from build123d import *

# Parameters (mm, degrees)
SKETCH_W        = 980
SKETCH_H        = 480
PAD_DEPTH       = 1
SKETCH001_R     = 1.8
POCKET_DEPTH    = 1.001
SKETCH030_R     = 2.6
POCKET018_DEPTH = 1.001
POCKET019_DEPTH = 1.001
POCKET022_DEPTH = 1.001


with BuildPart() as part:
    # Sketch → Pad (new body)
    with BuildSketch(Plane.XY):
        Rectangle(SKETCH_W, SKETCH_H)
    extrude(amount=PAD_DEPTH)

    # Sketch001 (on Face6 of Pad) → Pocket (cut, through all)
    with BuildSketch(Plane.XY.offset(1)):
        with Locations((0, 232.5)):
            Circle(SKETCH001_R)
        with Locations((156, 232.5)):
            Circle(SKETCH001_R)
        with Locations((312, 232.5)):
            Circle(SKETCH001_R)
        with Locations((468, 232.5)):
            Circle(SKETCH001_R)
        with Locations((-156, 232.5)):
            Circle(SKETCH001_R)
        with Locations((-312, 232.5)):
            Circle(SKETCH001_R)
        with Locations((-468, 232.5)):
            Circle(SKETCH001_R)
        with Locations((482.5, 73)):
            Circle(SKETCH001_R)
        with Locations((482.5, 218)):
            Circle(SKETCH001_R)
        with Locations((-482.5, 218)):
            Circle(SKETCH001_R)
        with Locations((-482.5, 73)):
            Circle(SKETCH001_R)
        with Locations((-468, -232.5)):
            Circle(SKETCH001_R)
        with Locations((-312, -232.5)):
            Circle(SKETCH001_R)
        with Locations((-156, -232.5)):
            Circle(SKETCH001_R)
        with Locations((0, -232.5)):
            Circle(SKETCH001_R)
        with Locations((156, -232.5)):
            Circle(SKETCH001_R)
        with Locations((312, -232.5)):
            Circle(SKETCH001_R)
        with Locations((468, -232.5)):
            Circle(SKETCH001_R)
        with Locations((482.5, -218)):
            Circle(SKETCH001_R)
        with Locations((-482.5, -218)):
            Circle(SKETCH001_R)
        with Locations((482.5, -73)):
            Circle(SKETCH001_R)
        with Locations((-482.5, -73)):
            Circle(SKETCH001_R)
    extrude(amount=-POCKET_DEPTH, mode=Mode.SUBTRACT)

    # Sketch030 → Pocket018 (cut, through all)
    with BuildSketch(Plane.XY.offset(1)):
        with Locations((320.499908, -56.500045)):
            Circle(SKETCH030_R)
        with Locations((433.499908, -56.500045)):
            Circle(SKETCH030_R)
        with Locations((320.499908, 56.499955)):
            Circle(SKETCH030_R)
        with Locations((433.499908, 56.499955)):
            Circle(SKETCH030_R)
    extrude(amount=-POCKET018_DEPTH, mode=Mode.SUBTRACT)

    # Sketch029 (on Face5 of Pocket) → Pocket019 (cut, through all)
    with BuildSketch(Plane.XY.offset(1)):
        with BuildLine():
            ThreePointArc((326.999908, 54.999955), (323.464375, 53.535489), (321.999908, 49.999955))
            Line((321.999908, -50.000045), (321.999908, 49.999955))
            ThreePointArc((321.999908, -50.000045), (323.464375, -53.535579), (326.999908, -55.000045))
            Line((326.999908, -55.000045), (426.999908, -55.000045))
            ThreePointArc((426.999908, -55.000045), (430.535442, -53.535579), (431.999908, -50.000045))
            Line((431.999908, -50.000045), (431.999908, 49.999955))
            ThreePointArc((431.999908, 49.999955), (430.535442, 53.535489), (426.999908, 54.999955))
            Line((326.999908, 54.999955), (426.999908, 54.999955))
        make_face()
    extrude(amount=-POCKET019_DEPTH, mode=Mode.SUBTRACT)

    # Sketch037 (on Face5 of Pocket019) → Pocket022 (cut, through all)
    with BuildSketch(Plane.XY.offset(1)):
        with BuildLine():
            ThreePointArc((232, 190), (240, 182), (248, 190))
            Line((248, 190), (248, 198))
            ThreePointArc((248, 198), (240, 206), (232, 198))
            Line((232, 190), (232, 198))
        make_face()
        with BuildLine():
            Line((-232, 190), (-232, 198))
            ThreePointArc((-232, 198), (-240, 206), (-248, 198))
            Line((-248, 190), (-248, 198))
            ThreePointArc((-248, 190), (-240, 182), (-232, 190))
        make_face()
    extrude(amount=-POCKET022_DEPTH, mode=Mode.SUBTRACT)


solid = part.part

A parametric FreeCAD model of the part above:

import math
import FreeCAD as App
import Part
import Sketcher
from FreeCAD import Vector
Q = App.Units.Quantity


def add_polygon(sketch, points):
    """Adds a closed chain of lines whose ends are joined by coincident constraints."""
    first, n = sketch.GeometryCount, len(points)
    for a, b in zip(points, points[1:] + points[:1]):
        sketch.addGeometry(Part.LineSegment(App.Vector(*a, 0), App.Vector(*b, 0)), False)
    for i in range(n):
        sketch.addConstraint(Sketcher.Constraint("Coincident", first + i, 2, first + (i + 1) % n, 1))

doc = App.newDocument("Part")
body = doc.addObject("PartDesign::Body", "Body")

sketch1 = body.newObject("Sketcher::SketchObject", "Sketch")
sketch1.AttachmentSupport = (doc.getObject("XY_Plane"), [""])
sketch1.MapMode = "FlatFace"
add_polygon(sketch1, [(-490, 240), (-490, -240), (490, -240), (490, 240)])
sketch1.addConstraint([
    Sketcher.Constraint("Vertical", 0),
    Sketcher.Constraint("Horizontal", 1),
    Sketcher.Constraint("Vertical", 2),
    Sketcher.Constraint("Horizontal", 3),
    Sketcher.Constraint("Symmetric", 0, 2, 2, 2, -1, 1),
    Sketcher.Constraint("DistanceX", 1, 1, 1, 2, Q("980 mm")),
    Sketcher.Constraint("DistanceY", 0, 2, 0, 1, Q("480 mm")),
])
pad1 = body.newObject("PartDesign::Pad", "Pad")
pad1.Profile = sketch1
pad1.Length = 1

sketch2 = body.newObject("Sketcher::SketchObject", "Sketch001")
sketch2.AttachmentSupport = (doc.getObject("XY_Plane"), [""])
sketch2.MapMode = "FlatFace"
sketch2.AttachmentOffset = App.Placement(Vector(0, 0, 1), App.Rotation())
sketch2.addGeometry([
    Part.Circle(Vector(0, 232.5, 0), Vector(0, 0, 1), 1.8),
    Part.Circle(Vector(156, 232.5, 0), Vector(0, 0, 1), 1.8),
    Part.Circle(Vector(312, 232.5, 0), Vector(0, 0, 1), 1.8),
    Part.Circle(Vector(468, 232.5, 0), Vector(0, 0, 1), 1.8),
    Part.Circle(Vector(-156, 232.5, 0), Vector(0, 0, 1), 1.8),
    Part.Circle(Vector(-312, 232.5, 0), Vector(0, 0, 1), 1.8),
    Part.Circle(Vector(-468, 232.5, 0), Vector(0, 0, 1), 1.8),
    Part.Circle(Vector(482.5, 73, 0), Vector(0, 0, 1), 1.8),
    Part.Circle(Vector(482.5, 218, 0), Vector(0, 0, 1), 1.8),
    Part.Circle(Vector(-482.5, 218, 0), Vector(0, 0, 1), 1.8),
    Part.Circle(Vector(-482.5, 73, 0), Vector(0, 0, 1), 1.8),
    Part.Circle(Vector(-468, -232.5, 0), Vector(0, 0, 1), 1.8),
    Part.Circle(Vector(-312, -232.5, 0), Vector(0, 0, 1), 1.8),
    Part.Circle(Vector(-156, -232.5, 0), Vector(0, 0, 1), 1.8),
    Part.Circle(Vector(0, -232.5, 0), Vector(0, 0, 1), 1.8),
    Part.Circle(Vector(156, -232.5, 0), Vector(0, 0, 1), 1.8),
    Part.Circle(Vector(312, -232.5, 0), Vector(0, 0, 1), 1.8),
    Part.Circle(Vector(468, -232.5, 0), Vector(0, 0, 1), 1.8),
    Part.Circle(Vector(482.5, -218, 0), Vector(0, 0, 1), 1.8),
    Part.Circle(Vector(-482.5, -218, 0), Vector(0, 0, 1), 1.8),
    Part.Circle(Vector(482.5, -73, 0), Vector(0, 0, 1), 1.8),
    Part.Circle(Vector(-482.5, -73, 0), Vector(0, 0, 1), 1.8),
], False)
sketch2.addConstraint([
    Sketcher.Constraint("Equal", 0, 1),
    Sketcher.Constraint("Equal", 1, 2),
    Sketcher.Constraint("Equal", 2, 3),
    Sketcher.Constraint("Equal", 3, 4),
    Sketcher.Constraint("Equal", 4, 5),
    Sketcher.Constraint("Equal", 5, 6),
    Sketcher.Constraint("Equal", 6, 7),
    Sketcher.Constraint("Equal", 7, 8),
    Sketcher.Constraint("Equal", 8, 9),
    Sketcher.Constraint("Equal", 9, 10),
    Sketcher.Constraint("Equal", 10, 11),
    Sketcher.Constraint("Equal", 11, 12),
    Sketcher.Constraint("Equal", 12, 13),
    Sketcher.Constraint("Equal", 13, 14),
    Sketcher.Constraint("Equal", 14, 15),
    Sketcher.Constraint("Equal", 15, 16),
    Sketcher.Constraint("Equal", 16, 17),
    Sketcher.Constraint("Equal", 17, 18),
    Sketcher.Constraint("Equal", 18, 19),
    Sketcher.Constraint("Equal", 19, 20),
    Sketcher.Constraint("Equal", 20, 21),
    Sketcher.Constraint("Symmetric", 3, 3, 11, 3, -1, 1),
    Sketcher.Constraint("Symmetric", 2, 3, 12, 3, -1, 1),
    Sketcher.Constraint("Symmetric", 1, 3, 13, 3, -1, 1),
    Sketcher.Constraint("Symmetric", 0, 3, 14, 3, -1, 1),
    Sketcher.Constraint("Symmetric", 4, 3, 15, 3, -1, 1),
    Sketcher.Constraint("Symmetric", 5, 3, 16, 3, -1, 1),
    Sketcher.Constraint("Symmetric", 6, 3, 17, 3, -1, 1),
    Sketcher.Constraint("Symmetric", 9, 3, 18, 3, -1, 1),
    Sketcher.Constraint("Symmetric", 8, 3, 19, 3, -1, 1),
    Sketcher.Constraint("Symmetric", 10, 3, 20, 3, -1, 1),
    Sketcher.Constraint("Symmetric", 7, 3, 21, 3, -1, 1),
    Sketcher.Constraint("Symmetric", 1, 3, 4, 3, -2),
    Sketcher.Constraint("Symmetric", 2, 3, 5, 3, -2),
    Sketcher.Constraint("Symmetric", 3, 3, 6, 3, -2),
    Sketcher.Constraint("Symmetric", 8, 3, 9, 3, -2),
    Sketcher.Constraint("Symmetric", 7, 3, 10, 3, -2),
    Sketcher.Constraint("PointOnObject", 0, 3, -2),
    Sketcher.Constraint("Horizontal", 0, 3, 1, 3),
    Sketcher.Constraint("Horizontal", 1, 3, 2, 3),
    Sketcher.Constraint("Horizontal", 2, 3, 3, 3),
    Sketcher.Constraint("Vertical", 7, 3, 8, 3),
    Sketcher.Constraint("Diameter", 0, Q("3.6 mm")),
    Sketcher.Constraint("DistanceX", -1, 1, 1, 3, Q("156 mm")),
    Sketcher.Constraint("DistanceX", -1, 1, 2, 3, Q("312 mm")),
    Sketcher.Constraint("DistanceX", -1, 1, 3, 3, Q("468 mm")),
    Sketcher.Constraint("DistanceY", -1, 1, 7, 3, Q("73 mm")),
    Sketcher.Constraint("DistanceY", -1, 1, 8, 3, Q("218 mm")),
    Sketcher.Constraint("DistanceY", 11, 3, 6, 3, Q("465 mm")),
    Sketcher.Constraint("DistanceX", -1, 1, 7, 3, Q("482.5 mm")),
])
pocket1 = body.newObject("PartDesign::Pocket", "Pocket")
pocket1.Profile = sketch2
pocket1.Type = "ThroughAll"

sketch3 = body.newObject("Sketcher::SketchObject", "Sketch002")
sketch3.AttachmentSupport = (doc.getObject("XY_Plane"), [""])
sketch3.MapMode = "FlatFace"
sketch3.AttachmentOffset = App.Placement(Vector(0, 0, 1), App.Rotation())
sketch3.addGeometry([
    Part.Circle(Vector(320.499908, -56.500045, 0), Vector(0, 0, 1), 2.6),
    Part.Circle(Vector(433.499908, -56.500045, 0), Vector(0, 0, 1), 2.6),
    Part.Circle(Vector(320.499908, 56.499955, 0), Vector(0, 0, 1), 2.6),
    Part.Circle(Vector(433.499908, 56.499955, 0), Vector(0, 0, 1), 2.6),
], False)
sketch3.addConstraint([
    Sketcher.Constraint("Equal", 0, 1),
    Sketcher.Constraint("Equal", 1, 2),
    Sketcher.Constraint("Equal", 2, 3),
    Sketcher.Constraint("Horizontal", 0, 3, 1, 3),
    Sketcher.Constraint("Horizontal", 2, 3, 3, 3),
    Sketcher.Constraint("Vertical", 0, 3, 2, 3),
    Sketcher.Constraint("Vertical", 1, 3, 3, 3),
    Sketcher.Constraint("Diameter", 0, Q("5.2 mm")),
    Sketcher.Constraint("DistanceX", 0, 3, 1, 3, Q("113 mm")),
    Sketcher.Constraint("DistanceY", 0, 3, 2, 3, Q("113 mm")),
    Sketcher.Constraint("DistanceX", -1, 1, 0, 3, Q("320.499908 mm")),
    Sketcher.Constraint("DistanceY", 0, 3, -1, 1, Q("56.500045 mm")),
])
pocket2 = body.newObject("PartDesign::Pocket", "Pocket001")
pocket2.Profile = sketch3
pocket2.Type = "ThroughAll"

sketch4 = body.newObject("Sketcher::SketchObject", "Sketch003")
sketch4.AttachmentSupport = (doc.getObject("XY_Plane"), [""])
sketch4.MapMode = "FlatFace"
sketch4.AttachmentOffset = App.Placement(Vector(0, 0, 1), App.Rotation())
sketch4.addGeometry([
    Part.ArcOfCircle(Part.Circle(Vector(326.999909, 49.999954, 0), Vector(0, 0, 1), 5.000001), math.radians(90.000016), math.radians(179.999984)),
    Part.LineSegment(Vector(321.999908, 49.999955, 0), Vector(321.999908, -50.000045, 0)),
    Part.ArcOfCircle(Part.Circle(Vector(326.999909, -50.000044, 0), Vector(0, 0, 1), 5.000001), math.radians(-179.999984), math.radians(-90.000016)),
    Part.LineSegment(Vector(326.999908, -55.000045, 0), Vector(426.999908, -55.000045, 0)),
    Part.ArcOfCircle(Part.Circle(Vector(426.999908, -50.000045, 0), Vector(0, 0, 1), 5), math.radians(-90.000004), math.radians(0.000004)),
    Part.LineSegment(Vector(431.999908, -50.000045, 0), Vector(431.999908, 49.999955, 0)),
    Part.ArcOfCircle(Part.Circle(Vector(426.999908, 49.999955, 0), Vector(0, 0, 1), 5), math.radians(-0.000004), math.radians(90.000004)),
    Part.LineSegment(Vector(426.999908, 54.999955, 0), Vector(326.999908, 54.999955, 0)),
], False)
sketch4.addConstraint([
    Sketcher.Constraint("Tangent", 0, 2, 1, 1),
    Sketcher.Constraint("Tangent", 1, 2, 2, 1),
    Sketcher.Constraint("Tangent", 2, 2, 3, 1),
    Sketcher.Constraint("Tangent", 3, 2, 4, 1),
    Sketcher.Constraint("Tangent", 4, 2, 5, 1),
    Sketcher.Constraint("Tangent", 5, 2, 6, 1),
    Sketcher.Constraint("Tangent", 6, 2, 7, 1),
    Sketcher.Constraint("Tangent", 7, 2, 0, 1),
    Sketcher.Constraint("Vertical", 1),
    Sketcher.Constraint("Horizontal", 3),
    Sketcher.Constraint("Vertical", 5),
    Sketcher.Constraint("Horizontal", 7),
    Sketcher.Constraint("Equal", 0, 2),
    Sketcher.Constraint("Equal", 2, 4),
    Sketcher.Constraint("Equal", 4, 6),
    Sketcher.Constraint("Equal", 7, 1),
    Sketcher.Constraint("Radius", 0, Q("5.000001 mm")),
    Sketcher.Constraint("DistanceX", 3, 1, 3, 2, Q("100 mm")),
    Sketcher.Constraint("DistanceX", -1, 1, 0, 3, Q("326.999909 mm")),
    Sketcher.Constraint("DistanceY", -1, 1, 0, 3, Q("49.999954 mm")),
])
pocket3 = body.newObject("PartDesign::Pocket", "Pocket002")
pocket3.Profile = sketch4
pocket3.Type = "ThroughAll"

sketch5 = body.newObject("Sketcher::SketchObject", "Sketch004")
sketch5.AttachmentSupport = (doc.getObject("XY_Plane"), [""])
sketch5.MapMode = "FlatFace"
sketch5.AttachmentOffset = App.Placement(Vector(0, 0, 1), App.Rotation())
sketch5.addGeometry([
    Part.ArcOfCircle(Part.Circle(Vector(240, 190, 0), Vector(0, 0, 1), 8), math.radians(180), math.radians(360)),
    Part.LineSegment(Vector(248, 190, 0), Vector(248, 198, 0)),
    Part.ArcOfCircle(Part.Circle(Vector(240, 198, 0), Vector(0, 0, 1), 8), math.radians(0), math.radians(180)),
    Part.LineSegment(Vector(232, 198, 0), Vector(232, 190, 0)),
    Part.LineSegment(Vector(-232, 190, 0), Vector(-232, 198, 0)),
    Part.ArcOfCircle(Part.Circle(Vector(-240, 198, 0), Vector(0, 0, 1), 8), math.radians(0), math.radians(180)),
    Part.LineSegment(Vector(-248, 198, 0), Vector(-248, 190, 0)),
    Part.ArcOfCircle(Part.Circle(Vector(-240, 190, 0), Vector(0, 0, 1), 8), math.radians(180), math.radians(360)),
], False)
sketch5.addConstraint([
    Sketcher.Constraint("Tangent", 0, 2, 1, 1),
    Sketcher.Constraint("Tangent", 1, 2, 2, 1),
    Sketcher.Constraint("Tangent", 2, 2, 3, 1),
    Sketcher.Constraint("Tangent", 3, 2, 0, 1),
    Sketcher.Constraint("Tangent", 4, 2, 5, 1),
    Sketcher.Constraint("Tangent", 5, 2, 6, 1),
    Sketcher.Constraint("Tangent", 6, 2, 7, 1),
    Sketcher.Constraint("Tangent", 7, 2, 4, 1),
    Sketcher.Constraint("Vertical", 1),
    Sketcher.Constraint("Vertical", 3),
    Sketcher.Constraint("Vertical", 4),
    Sketcher.Constraint("Vertical", 6),
    Sketcher.Constraint("Equal", 2, 5),
    Sketcher.Constraint("Symmetric", 2, 3, 5, 3, -2),
    Sketcher.Constraint("Horizontal", 0, 3, 7, 3),
    Sketcher.Constraint("Radius", 0, Q("8 mm")),
    Sketcher.Constraint("DistanceY", 1, 1, 1, 2, Q("8 mm")),
    Sketcher.Constraint("DistanceX", -1, 1, 0, 3, Q("240 mm")),
    Sketcher.Constraint("DistanceY", -1, 1, 0, 3, Q("190 mm")),
])
pocket4 = body.newObject("PartDesign::Pocket", "Pocket003")
pocket4.Profile = sketch5
pocket4.Type = "ThroughAll"

doc.recompute()
